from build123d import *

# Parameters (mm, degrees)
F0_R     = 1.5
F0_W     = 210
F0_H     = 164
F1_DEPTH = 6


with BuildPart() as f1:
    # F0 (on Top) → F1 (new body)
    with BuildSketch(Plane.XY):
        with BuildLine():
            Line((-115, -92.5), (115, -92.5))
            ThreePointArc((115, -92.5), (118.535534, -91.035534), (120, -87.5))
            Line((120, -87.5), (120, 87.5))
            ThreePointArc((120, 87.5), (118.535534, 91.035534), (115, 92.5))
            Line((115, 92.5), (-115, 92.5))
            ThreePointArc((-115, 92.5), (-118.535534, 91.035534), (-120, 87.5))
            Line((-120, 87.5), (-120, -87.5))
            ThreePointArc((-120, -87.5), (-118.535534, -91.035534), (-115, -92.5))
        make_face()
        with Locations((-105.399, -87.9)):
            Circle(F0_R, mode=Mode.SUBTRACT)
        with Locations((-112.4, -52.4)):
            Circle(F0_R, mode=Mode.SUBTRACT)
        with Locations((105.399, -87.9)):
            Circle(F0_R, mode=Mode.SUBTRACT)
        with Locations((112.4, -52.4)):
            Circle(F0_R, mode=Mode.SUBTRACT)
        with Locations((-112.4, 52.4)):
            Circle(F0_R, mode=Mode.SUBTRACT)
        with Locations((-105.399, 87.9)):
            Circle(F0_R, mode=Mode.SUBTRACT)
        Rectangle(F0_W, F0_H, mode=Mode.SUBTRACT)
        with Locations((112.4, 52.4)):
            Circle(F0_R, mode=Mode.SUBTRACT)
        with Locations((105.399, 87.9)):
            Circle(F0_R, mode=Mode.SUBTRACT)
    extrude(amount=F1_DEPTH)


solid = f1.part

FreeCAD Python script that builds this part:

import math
import FreeCAD as App
import Part
import Sketcher
from FreeCAD import Vector
Q = App.Units.Quantity

doc = App.newDocument("Part")
params = doc.addObject("Spreadsheet::Sheet", "Params")
for row, (alias, value) in enumerate([
    ("sketch1_diameter", "3 mm"),
    ("sketch1_radius", "5 mm"),
    ("sketch1_width", "230 mm"),
    ("sketch1_width2", "210 mm"),
    ("sketch1_height", "175 mm"),
    ("pad1_length", "6 mm"),
], start=1):
    params.set(f"A{row}", alias)
    params.set(f"B{row}", "=" + value)
    params.setAlias(f"B{row}", alias)

body = doc.addObject("PartDesign::Body", "Body")

# Sketch on XY plane
sketch1 = body.newObject("Sketcher::SketchObject", "Sketch")
sketch1.AttachmentSupport = (doc.getObject("XY_Plane"), [""])
sketch1.MapMode = "FlatFace"
sketch1.addGeometry([
    Part.LineSegment(Vector(-115, -92.5, 0), Vector(115, -92.5, 0)),  # 0
    Part.ArcOfCircle(Part.Circle(Vector(115, -87.5, 0), Vector(0, 0, 1), 5), math.radians(-90.000004), math.radians(0.000004)),  # 1
    Part.LineSegment(Vector(120, -87.5, 0), Vector(120, 87.5, 0)),  # 2
    Part.ArcOfCircle(Part.Circle(Vector(115, 87.5, 0), Vector(0, 0, 1), 5), math.radians(-0.000004), math.radians(90.000004)),  # 3
    Part.LineSegment(Vector(115, 92.5, 0), Vector(-115, 92.5, 0)),  # 4
    Part.ArcOfCircle(Part.Circle(Vector(-115, 87.5, 0), Vector(0, 0, 1), 5), math.radians(89.999996), math.radians(180.000004)),  # 5
    Part.LineSegment(Vector(-120, 87.5, 0), Vector(-120, -87.5, 0)),  # 6
    Part.ArcOfCircle(Part.Circle(Vector(-115, -87.5, 0), Vector(0, 0, 1), 5), math.radians(179.999996), math.radians(270.000004)),  # 7
    Part.Circle(Vector(-105.399, -87.9, 0), Vector(0, 0, 1), 1.5),  # 8
    Part.Circle(Vector(-112.4, -52.4, 0), Vector(0, 0, 1), 1.5),  # 9
    Part.Circle(Vector(105.399, -87.9, 0), Vector(0, 0, 1), 1.5),  # 10
    Part.Circle(Vector(112.4, -52.4, 0), Vector(0, 0, 1), 1.5),  # 11
    Part.Circle(Vector(-112.4, 52.4, 0), Vector(0, 0, 1), 1.5),  # 12
    Part.Circle(Vector(-105.399, 87.9, 0), Vector(0, 0, 1), 1.5),  # 13
    Part.LineSegment(Vector(105, -82, 0), Vector(-105, -82, 0)),  # 14
    Part.LineSegment(Vector(-105, -82, 0), Vector(-105, 82, 0)),  # 15
    Part.LineSegment(Vector(-105, 82, 0), Vector(105, 82, 0)),  # 16
    Part.LineSegment(Vector(105, 82, 0), Vector(105, -82, 0)),  # 17
    Part.Circle(Vector(112.4, 52.4, 0), Vector(0, 0, 1), 1.5),  # 18
    Part.Circle(Vector(105.399, 87.9, 0), Vector(0, 0, 1), 1.5),  # 19
], False)
sketch1.addConstraint([
    Sketcher.Constraint("Tangent", 0, 2, 1, 1),
    Sketcher.Constraint("Tangent", 1, 2, 2, 1),
    Sketcher.Constraint("Tangent", 2, 2, 3, 1),
    Sketcher.Constraint("Tangent", 3, 2, 4, 1),
    Sketcher.Constraint("Tangent", 4, 2, 5, 1),
    Sketcher.Constraint("Tangent", 5, 2, 6, 1),
    Sketcher.Constraint("Tangent", 6, 2, 7, 1),
    Sketcher.Constraint("Tangent", 7, 2, 0, 1),
    Sketcher.Constraint("Coincident", 14, 2, 15, 1),
    Sketcher.Constraint("Coincident", 15, 2, 16, 1),
    Sketcher.Constraint("Coincident", 16, 2, 17, 1),
    Sketcher.Constraint("Coincident", 17, 2, 14, 1),
    Sketcher.Constraint("Horizontal", 0),
    Sketcher.Constraint("Vertical", 2),
    Sketcher.Constraint("Horizontal", 4),
    Sketcher.Constraint("Vertical", 6),
    Sketcher.Constraint("Horizontal", 14),
    Sketcher.Constraint("Vertical", 15),
    Sketcher.Constraint("Horizontal", 16),
    Sketcher.Constraint("Vertical", 17),
    Sketcher.Constraint("Equal", 1, 3),
    Sketcher.Constraint("Equal", 3, 5),
    Sketcher.Constraint("Equal", 5, 7),
    Sketcher.Constraint("Equal", 8, 9),
    Sketcher.Constraint("Equal", 9, 10),
    Sketcher.Constraint("Equal", 10, 11),
    Sketcher.Constraint("Equal", 11, 12),
    Sketcher.Constraint("Equal", 12, 13),
    Sketcher.Constraint("Equal", 13, 18),
    Sketcher.Constraint("Equal", 18, 19),
    Sketcher.Constraint("Symmetric", 1, 3, 5, 3, -1, 1),
    Sketcher.Constraint("Symmetric", 11, 3, 12, 3, -1, 1),
    Sketcher.Constraint("Symmetric", 10, 3, 13, 3, -1, 1),
    Sketcher.Constraint("Symmetric", 9, 3, 18, 3, -1, 1),
    Sketcher.Constraint("Symmetric", 8, 3, 19, 3, -1, 1),
    Sketcher.Constraint("Symmetric", 14, 2, 16, 2, -1, 1),
    Sketcher.Constraint("Symmetric", 8, 3, 10, 3, -2),
    Sketcher.Constraint("Symmetric", 9, 3, 11, 3, -2),
    Sketcher.Constraint("Diameter", 8, Q("3 mm")),
    Sketcher.Constraint("Radius", 1, Q("5 mm")),
    Sketcher.Constraint("DistanceX", 0, 1, 0, 2, Q("230 mm")),
    Sketcher.Constraint("DistanceX", 14, 2, 14, 1, Q("210 mm")),
    Sketcher.Constraint("DistanceY", 2, 1, 2, 2, Q("175 mm")),
    Sketcher.Constraint("DistanceY", 15, 1, 15, 2, Q("164 mm")),
    Sketcher.Constraint("DistanceY", 8, 3, -1, 1, Q("87.9 mm")),
    Sketcher.Constraint("DistanceX", 9, 3, -1, 1, Q("112.4 mm")),
    Sketcher.Constraint("DistanceY", 9, 3, -1, 1, Q("52.4 mm")),
    Sketcher.Constraint("DistanceX", 8, 3, -1, 1, Q("105.399 mm")),
])
sketch1.setExpression("Constraints[38]", "Params.sketch1_diameter")
sketch1.setExpression("Constraints[39]", "Params.sketch1_radius")
sketch1.setExpression("Constraints[40]", "Params.sketch1_width")
sketch1.setExpression("Constraints[41]", "Params.sketch1_width2")
sketch1.setExpression("Constraints[42]", "Params.sketch1_height")
pad1 = body.newObject("PartDesign::Pad", "Pad")
pad1.Profile = sketch1
pad1.setExpression("Length", "Params.pad1_length")

doc.recompute()
